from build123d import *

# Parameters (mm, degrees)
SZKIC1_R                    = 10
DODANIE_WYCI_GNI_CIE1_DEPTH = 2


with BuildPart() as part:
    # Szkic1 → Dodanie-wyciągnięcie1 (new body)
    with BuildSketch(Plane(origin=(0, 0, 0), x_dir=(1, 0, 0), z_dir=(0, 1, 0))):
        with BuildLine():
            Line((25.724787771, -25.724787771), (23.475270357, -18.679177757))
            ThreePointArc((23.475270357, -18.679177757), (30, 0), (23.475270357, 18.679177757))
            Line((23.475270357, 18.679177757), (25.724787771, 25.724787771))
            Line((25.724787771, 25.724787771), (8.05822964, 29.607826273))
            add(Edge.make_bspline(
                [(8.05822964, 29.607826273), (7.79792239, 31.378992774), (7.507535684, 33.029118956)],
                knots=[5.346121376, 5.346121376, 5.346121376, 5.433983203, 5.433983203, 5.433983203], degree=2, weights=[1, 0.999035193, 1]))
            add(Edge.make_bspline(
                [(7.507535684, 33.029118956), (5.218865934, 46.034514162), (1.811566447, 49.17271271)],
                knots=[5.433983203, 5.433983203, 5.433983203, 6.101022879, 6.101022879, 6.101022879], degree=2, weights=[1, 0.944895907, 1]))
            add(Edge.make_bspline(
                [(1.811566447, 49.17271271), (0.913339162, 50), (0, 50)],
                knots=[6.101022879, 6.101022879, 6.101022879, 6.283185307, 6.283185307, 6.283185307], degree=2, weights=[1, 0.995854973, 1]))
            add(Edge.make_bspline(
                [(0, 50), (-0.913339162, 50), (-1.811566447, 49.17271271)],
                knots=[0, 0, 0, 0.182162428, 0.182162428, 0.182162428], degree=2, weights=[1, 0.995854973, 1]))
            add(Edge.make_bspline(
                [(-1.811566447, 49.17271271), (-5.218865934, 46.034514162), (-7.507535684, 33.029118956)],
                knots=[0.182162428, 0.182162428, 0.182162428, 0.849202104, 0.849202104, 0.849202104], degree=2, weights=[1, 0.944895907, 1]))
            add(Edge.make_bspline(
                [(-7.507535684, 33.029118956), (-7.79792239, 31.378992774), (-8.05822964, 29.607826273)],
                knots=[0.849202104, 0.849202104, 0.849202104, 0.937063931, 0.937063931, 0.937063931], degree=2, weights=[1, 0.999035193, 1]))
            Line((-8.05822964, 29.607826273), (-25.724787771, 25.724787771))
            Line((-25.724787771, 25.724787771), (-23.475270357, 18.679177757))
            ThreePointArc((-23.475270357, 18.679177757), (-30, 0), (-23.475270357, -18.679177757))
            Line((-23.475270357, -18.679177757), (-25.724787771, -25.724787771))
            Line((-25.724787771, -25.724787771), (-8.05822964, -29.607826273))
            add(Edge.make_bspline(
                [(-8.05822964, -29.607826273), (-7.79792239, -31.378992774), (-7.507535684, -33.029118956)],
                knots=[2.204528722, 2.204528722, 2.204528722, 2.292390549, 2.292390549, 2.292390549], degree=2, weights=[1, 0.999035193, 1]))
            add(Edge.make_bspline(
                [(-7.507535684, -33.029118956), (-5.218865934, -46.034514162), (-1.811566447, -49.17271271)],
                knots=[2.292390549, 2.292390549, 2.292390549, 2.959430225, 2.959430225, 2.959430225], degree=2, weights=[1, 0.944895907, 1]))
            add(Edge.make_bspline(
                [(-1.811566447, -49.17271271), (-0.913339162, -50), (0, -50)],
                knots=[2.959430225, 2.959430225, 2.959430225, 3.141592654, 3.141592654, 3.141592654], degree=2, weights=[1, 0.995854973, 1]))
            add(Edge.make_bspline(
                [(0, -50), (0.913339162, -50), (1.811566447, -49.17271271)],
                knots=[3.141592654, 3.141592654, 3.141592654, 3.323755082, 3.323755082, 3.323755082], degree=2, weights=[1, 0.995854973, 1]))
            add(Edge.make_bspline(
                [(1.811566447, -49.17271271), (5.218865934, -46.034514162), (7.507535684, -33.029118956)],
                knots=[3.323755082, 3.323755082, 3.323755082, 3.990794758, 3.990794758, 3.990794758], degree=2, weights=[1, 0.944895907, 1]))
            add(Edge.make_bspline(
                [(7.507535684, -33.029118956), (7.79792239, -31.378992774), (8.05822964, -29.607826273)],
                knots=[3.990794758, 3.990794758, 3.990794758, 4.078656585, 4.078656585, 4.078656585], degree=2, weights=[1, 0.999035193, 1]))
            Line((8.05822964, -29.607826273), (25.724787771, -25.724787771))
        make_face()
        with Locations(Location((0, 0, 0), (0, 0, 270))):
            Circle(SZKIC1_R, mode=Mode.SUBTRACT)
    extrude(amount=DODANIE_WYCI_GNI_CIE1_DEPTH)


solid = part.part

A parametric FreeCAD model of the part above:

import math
import FreeCAD as App
import Part
import Sketcher
Q = App.Units.Quantity

doc = App.newDocument("Part")
body = doc.addObject("PartDesign::Body", "Body")

sketch1 = doc.addObject("Sketcher::SketchObject", "Sketch")
body.addObject(sketch1)
sketch1.AttachmentSupport = (doc.XZ_Plane, [""])
sketch1.MapMode = "FlatFace"
sketch1.addGeometry([
    Part.LineSegment(App.Vector(25.724788, 25.724788, 0), App.Vector(23.47527, 18.679178, 0)),
    Part.ArcOfCircle(Part.Circle(App.Vector(0, 0, 0), App.Vector(0, 0, 1), 30), math.radians(-38.509124), math.radians(38.509124)),
    Part.LineSegment(App.Vector(23.47527, -18.679178, 0), App.Vector(25.724788, -25.724788, 0)),
    Part.LineSegment(App.Vector(25.724788, -25.724788, 0), App.Vector(8.05823, -29.607826, 0)),
    Part.BSplineCurve([App.Vector(8.05823, -29.607826, 0), App.Vector(7.797922, -31.378993, 0), App.Vector(7.507536, -33.029119, 0)], [3, 3], [5.346121376, 5.433983203], False, 2, [1, 0.999035193, 1], False),
    Part.BSplineCurve([App.Vector(7.507536, -33.029119, 0), App.Vector(5.218866, -46.034514, 0), App.Vector(1.811566, -49.172713, 0)], [3, 3], [5.433983203, 6.101022879], False, 2, [1, 0.944895907, 1], False),
    Part.BSplineCurve([App.Vector(1.811566, -49.172713, 0), App.Vector(1.453765, -49.502256, 0), App.Vector(1.092219, -49.751126, 0), App.Vector(0.728402, -49.917271, 0), App.Vector(0.363821, -50, 0), App.Vector(-0.363821, -50, 0), App.Vector(-0.728402, -49.917271, 0), App.Vector(-1.092219, -49.751126, 0), App.Vector(-1.453765, -49.502256, 0), App.Vector(-1.811566, -49.172713, 0)], [6, 4, 6], [6.101022879, 6.283185307, 6.465347735], False, 5, [1, 1, 0.999993128, 0.999993128, 1, 1, 0.999993128, 0.999993128, 1, 1], False),
    Part.BSplineCurve([App.Vector(-1.811566, -49.172713, 0), App.Vector(-5.218866, -46.034514, 0), App.Vector(-7.507536, -33.029119, 0)], [3, 3], [0.182162428, 0.849202104], False, 2, [1, 0.944895907, 1], False),
    Part.BSplineCurve([App.Vector(-7.507536, -33.029119, 0), App.Vector(-7.797922, -31.378993, 0), App.Vector(-8.05823, -29.607826, 0)], [3, 3], [0.849202104, 0.937063931], False, 2, [1, 0.999035193, 1], False),
    Part.LineSegment(App.Vector(-8.05823, -29.607826, 0), App.Vector(-25.724788, -25.724788, 0)),
    Part.LineSegment(App.Vector(-25.724788, -25.724788, 0), App.Vector(-23.47527, -18.679178, 0)),
    Part.ArcOfCircle(Part.Circle(App.Vector(0, 0, 0), App.Vector(0, 0, 1), 30), math.radians(141.490876), math.radians(218.509124)),
    Part.LineSegment(App.Vector(-23.47527, 18.679178, 0), App.Vector(-25.724788, 25.724788, 0)),
    Part.LineSegment(App.Vector(-25.724788, 25.724788, 0), App.Vector(-8.05823, 29.607826, 0)),
    Part.BSplineCurve([App.Vector(-8.05823, 29.607826, 0), App.Vector(-7.797922, 31.378993, 0), App.Vector(-7.507536, 33.029119, 0)], [3, 3], [2.204528722, 2.292390549], False, 2, [1, 0.999035193, 1], False),
    Part.BSplineCurve([App.Vector(-7.507536, 33.029119, 0), App.Vector(-5.218866, 46.034514, 0), App.Vector(-1.811566, 49.172713, 0)], [3, 3], [2.292390549, 2.959430225], False, 2, [1, 0.944895907, 1], False),
    Part.BSplineCurve([App.Vector(-1.811566, 49.172713, 0), App.Vector(-1.453765, 49.502256, 0), App.Vector(-1.092219, 49.751126, 0), App.Vector(-0.728402, 49.917271, 0), App.Vector(-0.363821, 50, 0), App.Vector(0.363821, 50, 0), App.Vector(0.728402, 49.917271, 0), App.Vector(1.092219, 49.751126, 0), App.Vector(1.453765, 49.502256, 0), App.Vector(1.811566, 49.172713, 0)], [6, 4, 6], [2.959430225, 3.141592654, 3.323755083], False, 5, [1, 1, 0.999993128, 0.999993128, 1, 1, 0.999993128, 0.999993128, 1, 1], False),
    Part.BSplineCurve([App.Vector(1.811566, 49.172713, 0), App.Vector(5.218866, 46.034514, 0), App.Vector(7.507536, 33.029119, 0)], [3, 3], [3.323755082, 3.990794758], False, 2, [1, 0.944895907, 1], False),
    Part.BSplineCurve([App.Vector(7.507536, 33.029119, 0), App.Vector(7.797922, 31.378993, 0), App.Vector(8.05823, 29.607826, 0)], [3, 3], [3.990794758, 4.078656585], False, 2, [1, 0.999035193, 1], False),
    Part.LineSegment(App.Vector(8.05823, 29.607826, 0), App.Vector(25.724788, 25.724788, 0)),
    Part.Circle(App.Vector(0, 0, 0), App.Vector(0, 0, 1), 10),
], False)
sketch1.addConstraint([
    Sketcher.Constraint("Block", 4),
    Sketcher.Constraint("Block", 5),
    Sketcher.Constraint("Block", 6),
    Sketcher.Constraint("Block", 7),
    Sketcher.Constraint("Block", 8),
    Sketcher.Constraint("Block", 14),
    Sketcher.Constraint("Block", 15),
    Sketcher.Constraint("Block", 16),
    Sketcher.Constraint("Block", 17),
    Sketcher.Constraint("Block", 18),
    Sketcher.Constraint("Coincident", 0, 2, 1, 2),
    Sketcher.Constraint("Coincident", 1, 1, 2, 1),
    Sketcher.Constraint("Coincident", 2, 2, 3, 1),
    Sketcher.Constraint("Coincident", 3, 2, 4, 1),
    Sketcher.Constraint("Coincident", 8, 2, 9, 1),
    Sketcher.Constraint("Coincident", 9, 2, 10, 1),
    Sketcher.Constraint("Coincident", 10, 2, 11, 2),
    Sketcher.Constraint("Coincident", 11, 1, 12, 1),
    Sketcher.Constraint("Coincident", 12, 2, 13, 1),
    Sketcher.Constraint("Coincident", 13, 2, 14, 1),
    Sketcher.Constraint("Coincident", 18, 2, 19, 1),
    Sketcher.Constraint("Coincident", 19, 2, 0, 1),
    Sketcher.Constraint("Coincident", 1, 3, -1, 1),
    Sketcher.Constraint("Coincident", 11, 3, -1, 1),
    Sketcher.Constraint("Coincident", 20, 3, -1, 1),
    Sketcher.Constraint("Equal", 1, 11),
    Sketcher.Constraint("Symmetric", 2, 2, 12, 2, -1, 1),
    Sketcher.Constraint("Symmetric", 9, 2, 19, 2, -1, 1),
    Sketcher.Constraint("Symmetric", 2, 2, 9, 2, -2),
    Sketcher.Constraint("Parallel", 0, 10),
    Sketcher.Constraint("Parallel", 2, 12),
    Sketcher.Constraint("Horizontal", 1, 1, 10, 2),
    Sketcher.Constraint("Diameter", 20, Q("20 mm")),
    Sketcher.Constraint("Radius", 1, Q("30 mm")),
    Sketcher.Constraint("DistanceX", 10, 2, 3, 2, Q("31.5335 mm")),
    Sketcher.Constraint("Distance", 0, Q("7.396009 mm")),
    Sketcher.Constraint("DistanceY", 2, 2, 1, 1, Q("7.04561 mm")),
])
pad1 = doc.addObject("PartDesign::Pad", "Pad")
body.addObject(pad1)
pad1.Profile = sketch1
pad1.Length = 2
pad1.Reversed = True

doc.recompute()
